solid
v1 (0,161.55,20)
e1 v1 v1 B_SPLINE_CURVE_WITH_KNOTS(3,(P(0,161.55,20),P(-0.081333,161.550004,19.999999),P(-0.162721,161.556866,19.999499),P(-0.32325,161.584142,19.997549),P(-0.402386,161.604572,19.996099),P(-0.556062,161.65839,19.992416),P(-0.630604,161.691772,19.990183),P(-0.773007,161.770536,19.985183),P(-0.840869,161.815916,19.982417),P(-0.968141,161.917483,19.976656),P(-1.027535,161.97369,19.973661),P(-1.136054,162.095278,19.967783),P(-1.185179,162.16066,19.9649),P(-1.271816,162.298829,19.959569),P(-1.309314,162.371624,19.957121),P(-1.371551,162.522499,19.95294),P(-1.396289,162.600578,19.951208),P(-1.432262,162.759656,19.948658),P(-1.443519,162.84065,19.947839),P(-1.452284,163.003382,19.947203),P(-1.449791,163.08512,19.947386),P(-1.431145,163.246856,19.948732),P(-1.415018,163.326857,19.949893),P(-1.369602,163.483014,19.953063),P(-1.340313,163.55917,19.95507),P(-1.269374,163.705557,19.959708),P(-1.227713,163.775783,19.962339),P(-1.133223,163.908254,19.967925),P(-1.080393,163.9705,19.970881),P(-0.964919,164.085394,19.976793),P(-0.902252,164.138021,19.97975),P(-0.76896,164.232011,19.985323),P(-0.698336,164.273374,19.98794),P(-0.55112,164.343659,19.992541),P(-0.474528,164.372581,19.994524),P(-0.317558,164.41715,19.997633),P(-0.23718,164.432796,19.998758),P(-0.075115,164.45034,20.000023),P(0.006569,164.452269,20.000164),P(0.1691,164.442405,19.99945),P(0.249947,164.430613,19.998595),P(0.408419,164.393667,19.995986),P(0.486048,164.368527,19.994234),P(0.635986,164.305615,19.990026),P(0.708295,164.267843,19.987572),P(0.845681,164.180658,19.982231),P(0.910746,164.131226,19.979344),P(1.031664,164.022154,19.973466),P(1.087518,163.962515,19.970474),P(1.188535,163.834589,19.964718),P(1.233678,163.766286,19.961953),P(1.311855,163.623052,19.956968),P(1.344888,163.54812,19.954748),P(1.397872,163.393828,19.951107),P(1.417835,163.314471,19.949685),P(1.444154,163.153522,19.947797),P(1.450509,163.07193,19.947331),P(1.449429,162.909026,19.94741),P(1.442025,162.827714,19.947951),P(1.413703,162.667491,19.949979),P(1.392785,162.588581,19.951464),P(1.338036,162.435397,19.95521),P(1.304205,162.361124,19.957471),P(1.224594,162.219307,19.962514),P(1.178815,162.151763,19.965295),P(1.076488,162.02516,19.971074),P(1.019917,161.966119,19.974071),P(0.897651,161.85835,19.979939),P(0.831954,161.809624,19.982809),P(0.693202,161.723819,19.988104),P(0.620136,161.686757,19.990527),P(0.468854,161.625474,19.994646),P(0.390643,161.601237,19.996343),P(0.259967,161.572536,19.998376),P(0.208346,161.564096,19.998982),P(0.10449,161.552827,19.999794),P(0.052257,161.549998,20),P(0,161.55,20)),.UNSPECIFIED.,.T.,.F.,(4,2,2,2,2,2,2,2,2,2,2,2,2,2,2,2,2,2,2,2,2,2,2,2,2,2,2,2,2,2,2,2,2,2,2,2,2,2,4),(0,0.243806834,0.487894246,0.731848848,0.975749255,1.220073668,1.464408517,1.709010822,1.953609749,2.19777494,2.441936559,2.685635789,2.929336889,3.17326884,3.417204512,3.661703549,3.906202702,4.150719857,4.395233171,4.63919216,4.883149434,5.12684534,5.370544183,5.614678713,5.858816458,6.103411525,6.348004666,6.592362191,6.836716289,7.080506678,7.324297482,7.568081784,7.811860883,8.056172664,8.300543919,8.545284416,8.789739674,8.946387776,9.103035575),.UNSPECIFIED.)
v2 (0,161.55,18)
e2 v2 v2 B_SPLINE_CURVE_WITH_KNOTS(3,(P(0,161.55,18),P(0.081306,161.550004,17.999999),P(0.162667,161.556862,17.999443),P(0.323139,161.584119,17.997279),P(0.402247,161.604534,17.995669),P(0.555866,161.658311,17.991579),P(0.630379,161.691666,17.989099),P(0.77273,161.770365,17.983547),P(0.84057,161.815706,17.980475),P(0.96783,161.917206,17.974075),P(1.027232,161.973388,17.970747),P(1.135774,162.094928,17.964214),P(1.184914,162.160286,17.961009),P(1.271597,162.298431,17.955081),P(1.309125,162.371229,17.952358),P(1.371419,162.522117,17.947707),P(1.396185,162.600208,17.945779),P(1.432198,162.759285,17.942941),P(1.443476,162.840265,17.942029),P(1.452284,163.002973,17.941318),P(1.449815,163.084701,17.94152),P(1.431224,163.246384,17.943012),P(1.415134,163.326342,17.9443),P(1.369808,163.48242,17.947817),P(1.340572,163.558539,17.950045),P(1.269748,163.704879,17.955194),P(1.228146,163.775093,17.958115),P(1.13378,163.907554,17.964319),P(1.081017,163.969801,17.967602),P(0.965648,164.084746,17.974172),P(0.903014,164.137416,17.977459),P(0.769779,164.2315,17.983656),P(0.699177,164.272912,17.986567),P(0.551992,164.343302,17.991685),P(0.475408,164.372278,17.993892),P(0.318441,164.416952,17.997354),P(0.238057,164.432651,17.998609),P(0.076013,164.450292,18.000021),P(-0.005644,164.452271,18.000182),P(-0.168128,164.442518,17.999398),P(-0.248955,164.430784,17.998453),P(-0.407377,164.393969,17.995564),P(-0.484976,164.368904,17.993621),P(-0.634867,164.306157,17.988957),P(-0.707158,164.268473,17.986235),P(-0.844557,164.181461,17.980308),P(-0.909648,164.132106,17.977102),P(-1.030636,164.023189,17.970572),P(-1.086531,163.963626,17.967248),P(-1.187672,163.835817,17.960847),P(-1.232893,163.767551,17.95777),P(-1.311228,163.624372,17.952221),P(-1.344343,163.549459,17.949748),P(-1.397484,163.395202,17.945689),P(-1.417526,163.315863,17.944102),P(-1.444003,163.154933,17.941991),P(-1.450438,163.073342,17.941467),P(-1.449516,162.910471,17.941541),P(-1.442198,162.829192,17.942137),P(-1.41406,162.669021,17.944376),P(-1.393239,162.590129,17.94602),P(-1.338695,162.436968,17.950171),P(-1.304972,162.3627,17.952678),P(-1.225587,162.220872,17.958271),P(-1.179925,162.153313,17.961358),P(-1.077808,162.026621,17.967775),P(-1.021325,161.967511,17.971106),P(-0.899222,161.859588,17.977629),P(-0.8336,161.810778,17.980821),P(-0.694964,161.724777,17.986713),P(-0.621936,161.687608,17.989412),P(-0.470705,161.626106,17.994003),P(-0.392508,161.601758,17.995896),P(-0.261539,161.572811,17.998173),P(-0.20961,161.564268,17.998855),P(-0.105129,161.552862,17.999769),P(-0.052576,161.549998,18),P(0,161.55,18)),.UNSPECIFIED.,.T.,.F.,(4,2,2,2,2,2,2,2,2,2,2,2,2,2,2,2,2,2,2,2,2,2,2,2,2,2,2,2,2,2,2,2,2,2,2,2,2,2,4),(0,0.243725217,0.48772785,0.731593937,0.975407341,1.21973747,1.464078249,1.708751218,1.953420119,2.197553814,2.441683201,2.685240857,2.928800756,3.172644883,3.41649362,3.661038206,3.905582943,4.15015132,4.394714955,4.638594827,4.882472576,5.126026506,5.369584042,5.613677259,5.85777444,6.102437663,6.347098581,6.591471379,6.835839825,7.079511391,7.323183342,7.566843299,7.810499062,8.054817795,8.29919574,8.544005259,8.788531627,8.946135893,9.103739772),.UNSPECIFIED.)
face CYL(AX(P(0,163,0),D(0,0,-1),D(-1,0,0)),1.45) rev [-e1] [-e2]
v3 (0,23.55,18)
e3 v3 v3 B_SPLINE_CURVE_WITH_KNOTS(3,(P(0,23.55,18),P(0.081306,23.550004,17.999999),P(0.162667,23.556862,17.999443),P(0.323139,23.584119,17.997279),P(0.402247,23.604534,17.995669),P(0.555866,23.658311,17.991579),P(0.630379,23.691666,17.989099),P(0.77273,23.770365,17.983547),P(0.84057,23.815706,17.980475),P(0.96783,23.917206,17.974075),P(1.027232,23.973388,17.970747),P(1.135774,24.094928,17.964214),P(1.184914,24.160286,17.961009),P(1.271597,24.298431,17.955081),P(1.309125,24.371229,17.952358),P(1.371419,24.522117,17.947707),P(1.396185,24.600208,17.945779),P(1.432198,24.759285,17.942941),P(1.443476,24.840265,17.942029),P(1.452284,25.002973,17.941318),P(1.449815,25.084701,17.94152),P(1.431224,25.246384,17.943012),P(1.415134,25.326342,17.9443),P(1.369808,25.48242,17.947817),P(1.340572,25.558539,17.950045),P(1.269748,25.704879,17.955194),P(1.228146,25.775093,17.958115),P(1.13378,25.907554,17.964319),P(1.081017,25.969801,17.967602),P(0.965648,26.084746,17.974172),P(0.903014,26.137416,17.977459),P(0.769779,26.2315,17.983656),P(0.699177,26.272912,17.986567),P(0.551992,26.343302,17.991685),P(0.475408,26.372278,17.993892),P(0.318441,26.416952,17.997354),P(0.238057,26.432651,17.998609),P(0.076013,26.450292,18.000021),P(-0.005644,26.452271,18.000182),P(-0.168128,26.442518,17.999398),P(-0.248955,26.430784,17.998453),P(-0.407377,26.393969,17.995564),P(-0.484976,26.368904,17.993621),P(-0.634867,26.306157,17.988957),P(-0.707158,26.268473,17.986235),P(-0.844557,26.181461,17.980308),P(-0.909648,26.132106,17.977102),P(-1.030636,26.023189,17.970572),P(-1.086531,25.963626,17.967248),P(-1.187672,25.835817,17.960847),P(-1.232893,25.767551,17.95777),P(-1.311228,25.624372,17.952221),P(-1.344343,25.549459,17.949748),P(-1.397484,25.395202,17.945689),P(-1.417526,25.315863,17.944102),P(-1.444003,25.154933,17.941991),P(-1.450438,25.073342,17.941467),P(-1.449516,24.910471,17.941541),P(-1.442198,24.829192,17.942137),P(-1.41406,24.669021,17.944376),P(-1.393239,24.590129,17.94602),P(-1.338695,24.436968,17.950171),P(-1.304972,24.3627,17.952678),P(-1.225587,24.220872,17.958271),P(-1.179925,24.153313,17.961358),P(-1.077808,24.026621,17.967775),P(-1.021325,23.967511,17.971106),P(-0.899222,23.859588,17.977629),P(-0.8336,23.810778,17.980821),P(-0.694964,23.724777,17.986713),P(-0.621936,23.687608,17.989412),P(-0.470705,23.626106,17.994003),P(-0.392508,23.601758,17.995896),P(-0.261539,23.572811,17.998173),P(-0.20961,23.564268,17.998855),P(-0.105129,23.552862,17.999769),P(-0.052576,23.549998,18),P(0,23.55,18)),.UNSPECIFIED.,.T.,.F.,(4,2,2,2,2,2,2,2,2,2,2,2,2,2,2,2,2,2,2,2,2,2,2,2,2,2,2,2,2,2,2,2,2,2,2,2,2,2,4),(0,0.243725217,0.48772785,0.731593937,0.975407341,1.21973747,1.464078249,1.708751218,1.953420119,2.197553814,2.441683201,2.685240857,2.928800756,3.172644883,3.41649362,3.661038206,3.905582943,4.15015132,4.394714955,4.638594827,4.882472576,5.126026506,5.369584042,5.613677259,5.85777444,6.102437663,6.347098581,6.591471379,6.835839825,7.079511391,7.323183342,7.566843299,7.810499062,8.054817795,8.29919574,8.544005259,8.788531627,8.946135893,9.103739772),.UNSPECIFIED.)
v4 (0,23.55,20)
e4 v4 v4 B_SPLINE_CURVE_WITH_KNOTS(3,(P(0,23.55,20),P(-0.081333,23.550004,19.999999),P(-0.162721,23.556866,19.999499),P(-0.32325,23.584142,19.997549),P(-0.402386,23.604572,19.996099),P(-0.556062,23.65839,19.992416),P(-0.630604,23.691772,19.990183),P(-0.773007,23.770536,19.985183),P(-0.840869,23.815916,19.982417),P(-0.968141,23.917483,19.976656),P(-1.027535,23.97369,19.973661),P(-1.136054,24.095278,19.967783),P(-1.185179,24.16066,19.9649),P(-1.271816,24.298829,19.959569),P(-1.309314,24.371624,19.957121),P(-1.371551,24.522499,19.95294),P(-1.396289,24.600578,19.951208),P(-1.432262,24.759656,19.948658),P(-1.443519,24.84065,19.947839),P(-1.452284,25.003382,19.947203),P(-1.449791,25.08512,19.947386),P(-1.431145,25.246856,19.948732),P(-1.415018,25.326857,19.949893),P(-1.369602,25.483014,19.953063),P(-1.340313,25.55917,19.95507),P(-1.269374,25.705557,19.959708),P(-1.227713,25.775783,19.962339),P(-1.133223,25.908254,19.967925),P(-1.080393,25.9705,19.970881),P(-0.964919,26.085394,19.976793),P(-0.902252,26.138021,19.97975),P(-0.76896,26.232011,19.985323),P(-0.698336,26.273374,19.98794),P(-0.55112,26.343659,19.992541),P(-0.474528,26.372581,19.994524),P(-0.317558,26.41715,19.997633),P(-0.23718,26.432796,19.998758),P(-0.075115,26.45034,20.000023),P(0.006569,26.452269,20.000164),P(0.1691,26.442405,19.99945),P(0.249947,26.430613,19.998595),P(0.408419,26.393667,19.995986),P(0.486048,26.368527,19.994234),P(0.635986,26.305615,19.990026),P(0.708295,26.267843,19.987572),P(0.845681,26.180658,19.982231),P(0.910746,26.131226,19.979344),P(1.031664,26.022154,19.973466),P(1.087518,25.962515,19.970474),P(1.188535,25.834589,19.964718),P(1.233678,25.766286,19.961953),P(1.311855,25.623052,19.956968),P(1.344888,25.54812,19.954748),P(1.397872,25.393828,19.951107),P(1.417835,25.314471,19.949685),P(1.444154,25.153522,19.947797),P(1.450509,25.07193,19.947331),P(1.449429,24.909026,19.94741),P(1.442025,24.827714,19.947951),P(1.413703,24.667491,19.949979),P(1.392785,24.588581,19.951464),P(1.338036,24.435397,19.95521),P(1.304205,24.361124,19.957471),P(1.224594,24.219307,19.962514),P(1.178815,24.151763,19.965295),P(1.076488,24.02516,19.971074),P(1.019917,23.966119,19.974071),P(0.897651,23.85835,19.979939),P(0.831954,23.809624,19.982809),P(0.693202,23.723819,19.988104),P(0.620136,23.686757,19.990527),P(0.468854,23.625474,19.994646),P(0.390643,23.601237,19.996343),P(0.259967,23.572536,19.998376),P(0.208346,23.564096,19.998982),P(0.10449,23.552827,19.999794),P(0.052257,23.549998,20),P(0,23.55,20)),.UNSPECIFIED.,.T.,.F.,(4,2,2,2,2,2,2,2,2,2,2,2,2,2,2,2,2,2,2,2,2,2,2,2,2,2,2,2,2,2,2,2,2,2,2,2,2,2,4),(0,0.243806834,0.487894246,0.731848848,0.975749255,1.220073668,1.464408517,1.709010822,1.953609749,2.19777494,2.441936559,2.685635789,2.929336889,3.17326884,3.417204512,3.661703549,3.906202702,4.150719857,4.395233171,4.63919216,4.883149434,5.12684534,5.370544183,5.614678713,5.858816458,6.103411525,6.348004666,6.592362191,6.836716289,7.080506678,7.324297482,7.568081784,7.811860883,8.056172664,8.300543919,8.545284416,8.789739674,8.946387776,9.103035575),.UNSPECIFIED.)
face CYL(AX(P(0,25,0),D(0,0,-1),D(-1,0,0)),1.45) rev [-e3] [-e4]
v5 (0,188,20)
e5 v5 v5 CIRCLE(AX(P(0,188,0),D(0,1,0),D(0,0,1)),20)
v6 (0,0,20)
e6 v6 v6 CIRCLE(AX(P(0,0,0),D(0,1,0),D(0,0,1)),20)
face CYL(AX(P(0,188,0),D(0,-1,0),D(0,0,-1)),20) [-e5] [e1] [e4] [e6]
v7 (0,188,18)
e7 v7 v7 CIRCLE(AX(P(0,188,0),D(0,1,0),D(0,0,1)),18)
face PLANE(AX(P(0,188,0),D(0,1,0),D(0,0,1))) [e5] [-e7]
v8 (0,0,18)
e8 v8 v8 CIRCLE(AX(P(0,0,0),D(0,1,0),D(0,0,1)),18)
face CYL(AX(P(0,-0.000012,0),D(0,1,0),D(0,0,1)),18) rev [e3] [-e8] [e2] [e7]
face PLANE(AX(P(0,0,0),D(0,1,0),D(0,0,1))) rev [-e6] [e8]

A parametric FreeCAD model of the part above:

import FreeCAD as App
import Part
import Sketcher
from FreeCAD import Vector


def add_polygon(sketch, points):
    """Adds a closed chain of lines whose ends are joined by coincident constraints."""
    first, n = sketch.GeometryCount, len(points)
    for a, b in zip(points, points[1:] + points[:1]):
        sketch.addGeometry(Part.LineSegment(App.Vector(*a, 0), App.Vector(*b, 0)), False)
    for i in range(n):
        sketch.addConstraint(Sketcher.Constraint("Coincident", first + i, 2, first + (i + 1) % n, 1))

doc = App.newDocument("Part")
params = doc.addObject("Spreadsheet::Sheet", "Params")
for row, (alias, value) in enumerate([
    ("sketch1_diameter", "40 mm"),
    ("pad1_length", "188 mm"),
    ("sketch2_diameter", "36 mm"),
    ("sketch3_height", "20 mm"),
    ("sketch3_width", "1.45 mm"),
    ("groove_angle", "360 deg"),
    ("linearpattern_pitch", "138 mm"),
], start=1):
    params.set(f"A{row}", alias)
    params.set(f"B{row}", "=" + value)
    params.setAlias(f"B{row}", alias)

body = doc.addObject("PartDesign::Body", "Body")

sketch1 = body.newObject("Sketcher::SketchObject", "Sketch")
sketch1.AttachmentSupport = (doc.getObject("XZ_Plane"), [""])
sketch1.MapMode = "FlatFace"
sketch1.addGeometry(Part.Circle(Vector(0, 0, 0), Vector(0, 0, 1), 20), False)
sketch1.addConstraint([
    Sketcher.Constraint("Coincident", 0, 3, -1, 1),
    Sketcher.Constraint("Diameter", 0, 40.0),
])
sketch1.setExpression("Constraints[1]", "Params.sketch1_diameter")
pad1 = body.newObject("PartDesign::Pad", "Pad")
pad1.Profile = sketch1
pad1.setExpression("Length", "Params.pad1_length")
pad1.Reversed = True

sketch2 = body.newObject("Sketcher::SketchObject", "Sketch001")
sketch2.AttachmentSupport = (doc.getObject("XZ_Plane"), [""])
sketch2.MapMode = "FlatFace"
sketch2.addGeometry(Part.Circle(Vector(0, 0, 0), Vector(0, 0, 1), 18), False)
sketch2.addConstraint([
    Sketcher.Constraint("Coincident", 0, 3, -1, 1),
    Sketcher.Constraint("Diameter", 0, 36.0),
])
sketch2.setExpression("Constraints[1]", "Params.sketch2_diameter")
pocket1 = body.newObject("PartDesign::Pocket", "Pocket")
pocket1.Profile = sketch2
pocket1.Type = "ThroughAll"
pocket1.Midplane = True

sketch3 = body.newObject("Sketcher::SketchObject", "Sketch002")
sketch3.AttachmentSupport = (doc.getObject("YZ_Plane"), [""])
sketch3.MapMode = "FlatFace"
add_polygon(sketch3, [(163, 20), (163, 0), (164.45, 0), (164.45, 20)])
sketch3.addGeometry(Part.LineSegment(Vector(163, 0, 0), Vector(163, 20, 0)), True)
sketch3.addConstraint([
    Sketcher.Constraint("Vertical", 0),
    Sketcher.Constraint("Horizontal", 1),
    Sketcher.Constraint("Vertical", 2),
    Sketcher.Constraint("Horizontal", 3),
    Sketcher.Constraint("Vertical", 4),
    Sketcher.Constraint("Coincident", 4, 1, 0, 2),
    Sketcher.Constraint("PointOnObject", 0, 2, -1),
    Sketcher.Constraint("Horizontal", 2, 2, 4, 2),
    Sketcher.Constraint("DistanceY", 0, 2, 0, 1, 20.0),
    Sketcher.Constraint("DistanceX", -1, 1, 0, 2, 163.0),
    Sketcher.Constraint("DistanceX", 1, 1, 1, 2, 1.45),
])
sketch3.setExpression("Constraints[12]", "Params.sketch3_height")
sketch3.setExpression("Constraints[14]", "Params.sketch3_width")
groove = body.newObject("PartDesign::Groove", "Groove")
groove.Profile = sketch3
groove.ReferenceAxis = (sketch3, ["Axis0"])
groove.setExpression("Angle", "Params.groove_angle")
doc.recompute()

linearpattern = body.newObject("PartDesign::LinearPattern", "LinearPattern")
linearpattern.Originals = [groove]
linearpattern.Direction = (doc.getObject("Y_Axis"), [""])
linearpattern.Mode = "offset"
linearpattern.setExpression("Offset", "Params.linearpattern_pitch")
linearpattern.Occurrences = 2
linearpattern.Reversed = True
body.Tip = linearpattern

doc.recompute()
